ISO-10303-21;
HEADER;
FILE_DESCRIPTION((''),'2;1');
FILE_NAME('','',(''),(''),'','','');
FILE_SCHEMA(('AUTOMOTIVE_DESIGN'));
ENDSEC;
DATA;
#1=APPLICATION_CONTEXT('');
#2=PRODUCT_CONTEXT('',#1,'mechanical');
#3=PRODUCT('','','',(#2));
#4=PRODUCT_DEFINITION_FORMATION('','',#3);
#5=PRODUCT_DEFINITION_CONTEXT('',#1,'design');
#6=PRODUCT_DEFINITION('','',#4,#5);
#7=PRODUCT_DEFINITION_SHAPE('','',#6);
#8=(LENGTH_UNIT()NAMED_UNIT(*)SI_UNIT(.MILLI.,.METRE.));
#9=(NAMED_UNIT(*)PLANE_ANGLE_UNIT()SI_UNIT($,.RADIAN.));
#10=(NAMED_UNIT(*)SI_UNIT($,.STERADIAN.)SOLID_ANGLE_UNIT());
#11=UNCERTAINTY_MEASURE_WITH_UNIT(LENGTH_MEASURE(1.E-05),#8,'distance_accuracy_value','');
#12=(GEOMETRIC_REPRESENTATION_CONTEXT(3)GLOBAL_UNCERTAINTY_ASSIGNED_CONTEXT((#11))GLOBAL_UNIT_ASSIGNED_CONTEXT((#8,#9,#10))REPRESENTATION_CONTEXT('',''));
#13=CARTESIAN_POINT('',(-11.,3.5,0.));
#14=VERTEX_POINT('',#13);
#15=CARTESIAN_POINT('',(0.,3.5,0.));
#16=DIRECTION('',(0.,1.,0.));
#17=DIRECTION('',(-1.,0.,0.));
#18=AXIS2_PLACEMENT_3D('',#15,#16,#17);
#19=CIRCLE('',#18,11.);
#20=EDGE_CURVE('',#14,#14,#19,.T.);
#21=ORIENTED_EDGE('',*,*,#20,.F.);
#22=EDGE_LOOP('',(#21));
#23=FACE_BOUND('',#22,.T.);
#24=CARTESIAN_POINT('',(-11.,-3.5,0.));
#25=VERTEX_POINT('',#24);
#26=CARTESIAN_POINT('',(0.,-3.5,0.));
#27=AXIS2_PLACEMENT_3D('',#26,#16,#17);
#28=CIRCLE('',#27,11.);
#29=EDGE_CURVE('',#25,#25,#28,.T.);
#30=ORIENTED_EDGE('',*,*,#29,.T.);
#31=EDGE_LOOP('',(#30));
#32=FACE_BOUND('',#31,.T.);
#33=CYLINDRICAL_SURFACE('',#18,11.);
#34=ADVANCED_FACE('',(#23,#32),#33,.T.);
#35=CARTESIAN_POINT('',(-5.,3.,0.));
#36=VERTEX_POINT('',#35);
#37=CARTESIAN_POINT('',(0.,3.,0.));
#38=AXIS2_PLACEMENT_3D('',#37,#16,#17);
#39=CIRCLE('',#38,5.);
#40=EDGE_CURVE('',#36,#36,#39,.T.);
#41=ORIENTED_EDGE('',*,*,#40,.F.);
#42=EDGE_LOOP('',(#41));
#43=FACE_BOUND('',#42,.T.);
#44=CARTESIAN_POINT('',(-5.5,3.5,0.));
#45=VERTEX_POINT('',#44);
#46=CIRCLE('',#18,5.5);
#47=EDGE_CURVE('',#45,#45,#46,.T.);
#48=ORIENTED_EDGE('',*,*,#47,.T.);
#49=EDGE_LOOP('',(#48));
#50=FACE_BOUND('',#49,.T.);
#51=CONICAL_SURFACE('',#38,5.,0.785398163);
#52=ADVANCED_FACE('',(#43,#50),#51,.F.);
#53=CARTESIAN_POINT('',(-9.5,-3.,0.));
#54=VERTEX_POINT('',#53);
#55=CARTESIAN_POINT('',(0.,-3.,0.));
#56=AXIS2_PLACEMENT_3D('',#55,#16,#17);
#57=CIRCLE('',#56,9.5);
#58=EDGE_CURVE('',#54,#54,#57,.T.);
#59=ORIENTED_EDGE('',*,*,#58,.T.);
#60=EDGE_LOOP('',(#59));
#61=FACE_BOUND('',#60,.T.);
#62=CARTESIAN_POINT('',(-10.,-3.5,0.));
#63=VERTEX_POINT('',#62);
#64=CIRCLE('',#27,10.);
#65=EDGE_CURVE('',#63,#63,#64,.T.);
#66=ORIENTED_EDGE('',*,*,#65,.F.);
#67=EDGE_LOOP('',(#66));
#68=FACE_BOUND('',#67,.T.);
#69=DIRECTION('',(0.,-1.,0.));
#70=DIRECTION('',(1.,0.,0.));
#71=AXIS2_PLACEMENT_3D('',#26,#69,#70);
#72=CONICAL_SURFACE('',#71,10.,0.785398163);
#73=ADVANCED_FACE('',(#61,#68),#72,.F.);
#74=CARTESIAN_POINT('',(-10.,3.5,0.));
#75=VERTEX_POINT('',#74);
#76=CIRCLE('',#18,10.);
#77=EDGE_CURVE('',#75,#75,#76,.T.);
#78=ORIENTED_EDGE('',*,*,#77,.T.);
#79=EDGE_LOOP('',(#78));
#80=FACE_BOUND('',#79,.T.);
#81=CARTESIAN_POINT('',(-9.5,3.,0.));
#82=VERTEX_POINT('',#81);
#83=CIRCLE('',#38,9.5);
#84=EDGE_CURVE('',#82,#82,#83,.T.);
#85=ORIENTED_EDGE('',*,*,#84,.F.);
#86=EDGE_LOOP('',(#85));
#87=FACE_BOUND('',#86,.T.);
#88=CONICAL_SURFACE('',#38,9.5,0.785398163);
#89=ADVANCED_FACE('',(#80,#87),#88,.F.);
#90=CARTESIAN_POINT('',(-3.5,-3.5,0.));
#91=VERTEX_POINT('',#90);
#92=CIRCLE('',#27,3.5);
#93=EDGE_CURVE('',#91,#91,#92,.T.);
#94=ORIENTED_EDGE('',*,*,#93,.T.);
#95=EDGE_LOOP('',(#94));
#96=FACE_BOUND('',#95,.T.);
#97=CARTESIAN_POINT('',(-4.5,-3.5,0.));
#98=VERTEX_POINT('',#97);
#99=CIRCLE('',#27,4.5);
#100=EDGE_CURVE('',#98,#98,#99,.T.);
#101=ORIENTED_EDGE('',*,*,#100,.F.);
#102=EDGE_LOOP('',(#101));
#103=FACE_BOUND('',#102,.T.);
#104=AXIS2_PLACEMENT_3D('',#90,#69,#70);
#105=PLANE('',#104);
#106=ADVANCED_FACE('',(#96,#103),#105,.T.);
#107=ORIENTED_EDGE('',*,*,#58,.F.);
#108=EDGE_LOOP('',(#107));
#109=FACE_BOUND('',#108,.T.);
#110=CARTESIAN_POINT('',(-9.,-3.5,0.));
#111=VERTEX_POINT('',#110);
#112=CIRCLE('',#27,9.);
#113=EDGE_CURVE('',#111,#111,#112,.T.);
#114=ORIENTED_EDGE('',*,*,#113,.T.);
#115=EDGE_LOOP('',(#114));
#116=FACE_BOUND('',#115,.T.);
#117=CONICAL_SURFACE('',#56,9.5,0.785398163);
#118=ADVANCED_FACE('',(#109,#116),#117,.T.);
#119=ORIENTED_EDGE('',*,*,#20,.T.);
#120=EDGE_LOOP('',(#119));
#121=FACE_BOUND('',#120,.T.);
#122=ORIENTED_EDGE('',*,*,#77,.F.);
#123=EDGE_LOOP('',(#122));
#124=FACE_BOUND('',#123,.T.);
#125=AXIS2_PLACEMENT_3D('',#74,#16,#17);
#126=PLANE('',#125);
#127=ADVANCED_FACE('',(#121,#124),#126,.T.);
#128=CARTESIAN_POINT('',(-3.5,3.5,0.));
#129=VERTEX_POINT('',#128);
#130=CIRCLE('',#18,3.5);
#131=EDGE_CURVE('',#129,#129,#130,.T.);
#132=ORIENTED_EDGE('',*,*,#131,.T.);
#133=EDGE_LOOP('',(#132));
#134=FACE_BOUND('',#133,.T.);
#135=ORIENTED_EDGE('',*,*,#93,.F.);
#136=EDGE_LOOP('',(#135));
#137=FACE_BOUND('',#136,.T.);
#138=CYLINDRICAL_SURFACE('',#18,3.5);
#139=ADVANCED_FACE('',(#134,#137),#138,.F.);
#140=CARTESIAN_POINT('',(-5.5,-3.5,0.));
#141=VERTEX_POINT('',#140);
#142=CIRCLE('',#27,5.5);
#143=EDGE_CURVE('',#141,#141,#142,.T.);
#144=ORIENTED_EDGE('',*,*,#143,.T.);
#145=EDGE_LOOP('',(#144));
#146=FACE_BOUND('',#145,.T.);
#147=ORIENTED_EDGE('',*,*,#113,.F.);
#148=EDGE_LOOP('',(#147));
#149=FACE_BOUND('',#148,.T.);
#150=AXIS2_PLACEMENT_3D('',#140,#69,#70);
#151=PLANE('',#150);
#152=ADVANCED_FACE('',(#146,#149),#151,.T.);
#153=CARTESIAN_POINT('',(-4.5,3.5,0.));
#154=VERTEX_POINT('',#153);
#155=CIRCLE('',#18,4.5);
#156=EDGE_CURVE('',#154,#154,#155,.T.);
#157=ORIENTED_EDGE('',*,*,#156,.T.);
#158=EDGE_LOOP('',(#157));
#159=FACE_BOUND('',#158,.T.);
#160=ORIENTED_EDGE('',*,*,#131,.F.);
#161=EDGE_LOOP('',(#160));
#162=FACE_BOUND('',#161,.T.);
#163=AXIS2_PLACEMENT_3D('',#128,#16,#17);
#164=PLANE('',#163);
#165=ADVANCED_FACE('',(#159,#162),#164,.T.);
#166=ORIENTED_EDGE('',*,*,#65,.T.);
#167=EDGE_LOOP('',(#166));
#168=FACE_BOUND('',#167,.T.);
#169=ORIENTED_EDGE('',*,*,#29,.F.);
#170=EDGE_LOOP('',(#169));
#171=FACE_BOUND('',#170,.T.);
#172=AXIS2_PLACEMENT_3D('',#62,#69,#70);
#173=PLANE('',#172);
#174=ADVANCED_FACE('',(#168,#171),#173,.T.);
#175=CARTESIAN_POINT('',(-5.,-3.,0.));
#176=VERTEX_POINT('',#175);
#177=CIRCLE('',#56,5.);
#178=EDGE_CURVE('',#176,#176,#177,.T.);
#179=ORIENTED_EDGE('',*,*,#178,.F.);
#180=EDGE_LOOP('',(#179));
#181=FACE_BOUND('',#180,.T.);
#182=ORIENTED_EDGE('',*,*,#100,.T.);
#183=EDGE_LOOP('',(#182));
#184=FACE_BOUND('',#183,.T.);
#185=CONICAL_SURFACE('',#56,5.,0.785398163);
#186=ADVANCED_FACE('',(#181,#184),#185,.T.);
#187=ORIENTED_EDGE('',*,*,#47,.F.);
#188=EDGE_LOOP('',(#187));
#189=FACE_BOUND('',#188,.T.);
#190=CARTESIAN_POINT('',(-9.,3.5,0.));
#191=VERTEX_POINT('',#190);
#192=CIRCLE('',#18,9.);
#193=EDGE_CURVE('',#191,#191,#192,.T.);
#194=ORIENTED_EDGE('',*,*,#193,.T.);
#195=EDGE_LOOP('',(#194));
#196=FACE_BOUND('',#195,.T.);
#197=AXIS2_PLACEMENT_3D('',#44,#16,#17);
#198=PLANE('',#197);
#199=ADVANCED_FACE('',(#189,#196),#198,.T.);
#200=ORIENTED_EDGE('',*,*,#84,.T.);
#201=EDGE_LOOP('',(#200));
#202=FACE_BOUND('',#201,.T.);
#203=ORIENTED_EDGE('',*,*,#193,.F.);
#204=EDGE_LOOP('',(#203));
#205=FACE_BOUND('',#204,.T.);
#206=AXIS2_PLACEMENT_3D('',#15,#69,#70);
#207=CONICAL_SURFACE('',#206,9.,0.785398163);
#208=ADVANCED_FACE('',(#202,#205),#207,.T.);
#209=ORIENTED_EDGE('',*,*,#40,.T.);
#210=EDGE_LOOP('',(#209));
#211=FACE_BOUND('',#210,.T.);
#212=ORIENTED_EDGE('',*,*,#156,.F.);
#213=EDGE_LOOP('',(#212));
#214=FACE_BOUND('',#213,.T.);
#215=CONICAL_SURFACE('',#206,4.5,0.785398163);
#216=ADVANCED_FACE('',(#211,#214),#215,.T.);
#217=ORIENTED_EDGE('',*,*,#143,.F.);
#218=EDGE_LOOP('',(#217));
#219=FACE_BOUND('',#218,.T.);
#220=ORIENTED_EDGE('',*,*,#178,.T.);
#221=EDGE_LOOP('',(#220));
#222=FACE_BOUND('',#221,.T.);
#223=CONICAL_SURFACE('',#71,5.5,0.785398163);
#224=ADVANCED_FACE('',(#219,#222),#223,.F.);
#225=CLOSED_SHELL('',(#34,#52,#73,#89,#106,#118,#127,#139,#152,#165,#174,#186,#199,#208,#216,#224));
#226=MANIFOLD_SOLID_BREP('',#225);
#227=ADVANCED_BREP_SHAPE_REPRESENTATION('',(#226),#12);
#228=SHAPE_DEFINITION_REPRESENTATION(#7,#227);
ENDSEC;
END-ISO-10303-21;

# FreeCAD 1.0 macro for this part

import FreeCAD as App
import Part
import Sketcher

V = App.Vector
Q = App.Units.Quantity


def add_polygon(sketch, points):
    """Adds a closed chain of lines whose ends are joined by coincident constraints."""
    first, n = sketch.GeometryCount, len(points)
    for a, b in zip(points, points[1:] + points[:1]):
        sketch.addGeometry(Part.LineSegment(App.Vector(*a, 0), App.Vector(*b, 0)), False)
    for i in range(n):
        sketch.addConstraint(Sketcher.Constraint("Coincident", first + i, 2, first + (i + 1) % n, 1))

doc = App.newDocument("Part")
body = doc.addObject("PartDesign::Body", "Body")

# Sketch on XY plane
sketch1 = body.newObject("Sketcher::SketchObject", "Sketch")
sketch1.AttachmentSupport = (doc.getObject("XY_Plane"), [""])
sketch1.MapMode = "FlatFace"
add_polygon(sketch1, [(-3.5, 3.5), (-4.5, 3.5), (-5, 3), (-5.5, 3.5), (-9, 3.5), (-9.5, 3), (-10, 3.5), (-11, 3.5), (-11, -3.5), (-10, -3.5), (-9.5, -3), (-9, -3.5), (-5.5, -3.5), (-5, -3), (-4.5, -3.5), (-3.5, -3.5)])  # lines 0-15
sketch1.addConstraint(Sketcher.Constraint("Horizontal", 0))
sketch1.addConstraint(Sketcher.Constraint("Horizontal", 3))
sketch1.addConstraint(Sketcher.Constraint("Horizontal", 6))
sketch1.addConstraint(Sketcher.Constraint("Vertical", 7))
sketch1.addConstraint(Sketcher.Constraint("Horizontal", 8))
sketch1.addConstraint(Sketcher.Constraint("Horizontal", 11))
sketch1.addConstraint(Sketcher.Constraint("Horizontal", 14))
sketch1.addConstraint(Sketcher.Constraint("Vertical", 15))
sketch1.addConstraint(Sketcher.Constraint("Symmetric", 5, 2, 8, 2, -1))
sketch1.addConstraint(Sketcher.Constraint("Symmetric", 4, 2, 9, 2, -1))
sketch1.addConstraint(Sketcher.Constraint("Symmetric", 3, 2, 10, 2, -1))
sketch1.addConstraint(Sketcher.Constraint("Symmetric", 1, 2, 12, 2, -1))
sketch1.addConstraint(Sketcher.Constraint("Symmetric", 0, 2, 13, 2, -1))
sketch1.addConstraint(Sketcher.Constraint("Perpendicular", 1, 2))
sketch1.addConstraint(Sketcher.Constraint("Perpendicular", 2, 4))
sketch1.addConstraint(Sketcher.Constraint("Perpendicular", 4, 5))
sketch1.addConstraint(Sketcher.Constraint("Perpendicular", 5, 9))
sketch1.addConstraint(Sketcher.Constraint("Perpendicular", 10, 12))
sketch1.addConstraint(Sketcher.Constraint("Horizontal", 0, 2, 2, 2))
sketch1.addConstraint(Sketcher.Constraint("Horizontal", 1, 2, 4, 2))
sketch1.addConstraint(Sketcher.Constraint("Horizontal", 3, 2, 5, 2))
sketch1.addConstraint(Sketcher.Constraint("Equal", 0, 6))
sketch1.addConstraint(Sketcher.Constraint("DistanceX", 0, 2, 0, 1, Q("1 mm")))
sketch1.addConstraint(Sketcher.Constraint("DistanceY", 7, 2, 7, 1, Q("7 mm")))
sketch1.addConstraint(Sketcher.Constraint("DistanceX", 3, 2, 3, 1, Q("3.5 mm")))
sketch1.addConstraint(Sketcher.Constraint("DistanceX", 1, 2, -1, 1, Q("5 mm")))
sketch1.addConstraint(Sketcher.Constraint("DistanceY", -1, 1, 1, 2, Q("3 mm")))
revolution = body.newObject("PartDesign::Revolution", "Revolution")
revolution.Profile = sketch1
revolution.ReferenceAxis = (sketch1, ["V_Axis"])
revolution.Angle = 360

doc.recompute()
